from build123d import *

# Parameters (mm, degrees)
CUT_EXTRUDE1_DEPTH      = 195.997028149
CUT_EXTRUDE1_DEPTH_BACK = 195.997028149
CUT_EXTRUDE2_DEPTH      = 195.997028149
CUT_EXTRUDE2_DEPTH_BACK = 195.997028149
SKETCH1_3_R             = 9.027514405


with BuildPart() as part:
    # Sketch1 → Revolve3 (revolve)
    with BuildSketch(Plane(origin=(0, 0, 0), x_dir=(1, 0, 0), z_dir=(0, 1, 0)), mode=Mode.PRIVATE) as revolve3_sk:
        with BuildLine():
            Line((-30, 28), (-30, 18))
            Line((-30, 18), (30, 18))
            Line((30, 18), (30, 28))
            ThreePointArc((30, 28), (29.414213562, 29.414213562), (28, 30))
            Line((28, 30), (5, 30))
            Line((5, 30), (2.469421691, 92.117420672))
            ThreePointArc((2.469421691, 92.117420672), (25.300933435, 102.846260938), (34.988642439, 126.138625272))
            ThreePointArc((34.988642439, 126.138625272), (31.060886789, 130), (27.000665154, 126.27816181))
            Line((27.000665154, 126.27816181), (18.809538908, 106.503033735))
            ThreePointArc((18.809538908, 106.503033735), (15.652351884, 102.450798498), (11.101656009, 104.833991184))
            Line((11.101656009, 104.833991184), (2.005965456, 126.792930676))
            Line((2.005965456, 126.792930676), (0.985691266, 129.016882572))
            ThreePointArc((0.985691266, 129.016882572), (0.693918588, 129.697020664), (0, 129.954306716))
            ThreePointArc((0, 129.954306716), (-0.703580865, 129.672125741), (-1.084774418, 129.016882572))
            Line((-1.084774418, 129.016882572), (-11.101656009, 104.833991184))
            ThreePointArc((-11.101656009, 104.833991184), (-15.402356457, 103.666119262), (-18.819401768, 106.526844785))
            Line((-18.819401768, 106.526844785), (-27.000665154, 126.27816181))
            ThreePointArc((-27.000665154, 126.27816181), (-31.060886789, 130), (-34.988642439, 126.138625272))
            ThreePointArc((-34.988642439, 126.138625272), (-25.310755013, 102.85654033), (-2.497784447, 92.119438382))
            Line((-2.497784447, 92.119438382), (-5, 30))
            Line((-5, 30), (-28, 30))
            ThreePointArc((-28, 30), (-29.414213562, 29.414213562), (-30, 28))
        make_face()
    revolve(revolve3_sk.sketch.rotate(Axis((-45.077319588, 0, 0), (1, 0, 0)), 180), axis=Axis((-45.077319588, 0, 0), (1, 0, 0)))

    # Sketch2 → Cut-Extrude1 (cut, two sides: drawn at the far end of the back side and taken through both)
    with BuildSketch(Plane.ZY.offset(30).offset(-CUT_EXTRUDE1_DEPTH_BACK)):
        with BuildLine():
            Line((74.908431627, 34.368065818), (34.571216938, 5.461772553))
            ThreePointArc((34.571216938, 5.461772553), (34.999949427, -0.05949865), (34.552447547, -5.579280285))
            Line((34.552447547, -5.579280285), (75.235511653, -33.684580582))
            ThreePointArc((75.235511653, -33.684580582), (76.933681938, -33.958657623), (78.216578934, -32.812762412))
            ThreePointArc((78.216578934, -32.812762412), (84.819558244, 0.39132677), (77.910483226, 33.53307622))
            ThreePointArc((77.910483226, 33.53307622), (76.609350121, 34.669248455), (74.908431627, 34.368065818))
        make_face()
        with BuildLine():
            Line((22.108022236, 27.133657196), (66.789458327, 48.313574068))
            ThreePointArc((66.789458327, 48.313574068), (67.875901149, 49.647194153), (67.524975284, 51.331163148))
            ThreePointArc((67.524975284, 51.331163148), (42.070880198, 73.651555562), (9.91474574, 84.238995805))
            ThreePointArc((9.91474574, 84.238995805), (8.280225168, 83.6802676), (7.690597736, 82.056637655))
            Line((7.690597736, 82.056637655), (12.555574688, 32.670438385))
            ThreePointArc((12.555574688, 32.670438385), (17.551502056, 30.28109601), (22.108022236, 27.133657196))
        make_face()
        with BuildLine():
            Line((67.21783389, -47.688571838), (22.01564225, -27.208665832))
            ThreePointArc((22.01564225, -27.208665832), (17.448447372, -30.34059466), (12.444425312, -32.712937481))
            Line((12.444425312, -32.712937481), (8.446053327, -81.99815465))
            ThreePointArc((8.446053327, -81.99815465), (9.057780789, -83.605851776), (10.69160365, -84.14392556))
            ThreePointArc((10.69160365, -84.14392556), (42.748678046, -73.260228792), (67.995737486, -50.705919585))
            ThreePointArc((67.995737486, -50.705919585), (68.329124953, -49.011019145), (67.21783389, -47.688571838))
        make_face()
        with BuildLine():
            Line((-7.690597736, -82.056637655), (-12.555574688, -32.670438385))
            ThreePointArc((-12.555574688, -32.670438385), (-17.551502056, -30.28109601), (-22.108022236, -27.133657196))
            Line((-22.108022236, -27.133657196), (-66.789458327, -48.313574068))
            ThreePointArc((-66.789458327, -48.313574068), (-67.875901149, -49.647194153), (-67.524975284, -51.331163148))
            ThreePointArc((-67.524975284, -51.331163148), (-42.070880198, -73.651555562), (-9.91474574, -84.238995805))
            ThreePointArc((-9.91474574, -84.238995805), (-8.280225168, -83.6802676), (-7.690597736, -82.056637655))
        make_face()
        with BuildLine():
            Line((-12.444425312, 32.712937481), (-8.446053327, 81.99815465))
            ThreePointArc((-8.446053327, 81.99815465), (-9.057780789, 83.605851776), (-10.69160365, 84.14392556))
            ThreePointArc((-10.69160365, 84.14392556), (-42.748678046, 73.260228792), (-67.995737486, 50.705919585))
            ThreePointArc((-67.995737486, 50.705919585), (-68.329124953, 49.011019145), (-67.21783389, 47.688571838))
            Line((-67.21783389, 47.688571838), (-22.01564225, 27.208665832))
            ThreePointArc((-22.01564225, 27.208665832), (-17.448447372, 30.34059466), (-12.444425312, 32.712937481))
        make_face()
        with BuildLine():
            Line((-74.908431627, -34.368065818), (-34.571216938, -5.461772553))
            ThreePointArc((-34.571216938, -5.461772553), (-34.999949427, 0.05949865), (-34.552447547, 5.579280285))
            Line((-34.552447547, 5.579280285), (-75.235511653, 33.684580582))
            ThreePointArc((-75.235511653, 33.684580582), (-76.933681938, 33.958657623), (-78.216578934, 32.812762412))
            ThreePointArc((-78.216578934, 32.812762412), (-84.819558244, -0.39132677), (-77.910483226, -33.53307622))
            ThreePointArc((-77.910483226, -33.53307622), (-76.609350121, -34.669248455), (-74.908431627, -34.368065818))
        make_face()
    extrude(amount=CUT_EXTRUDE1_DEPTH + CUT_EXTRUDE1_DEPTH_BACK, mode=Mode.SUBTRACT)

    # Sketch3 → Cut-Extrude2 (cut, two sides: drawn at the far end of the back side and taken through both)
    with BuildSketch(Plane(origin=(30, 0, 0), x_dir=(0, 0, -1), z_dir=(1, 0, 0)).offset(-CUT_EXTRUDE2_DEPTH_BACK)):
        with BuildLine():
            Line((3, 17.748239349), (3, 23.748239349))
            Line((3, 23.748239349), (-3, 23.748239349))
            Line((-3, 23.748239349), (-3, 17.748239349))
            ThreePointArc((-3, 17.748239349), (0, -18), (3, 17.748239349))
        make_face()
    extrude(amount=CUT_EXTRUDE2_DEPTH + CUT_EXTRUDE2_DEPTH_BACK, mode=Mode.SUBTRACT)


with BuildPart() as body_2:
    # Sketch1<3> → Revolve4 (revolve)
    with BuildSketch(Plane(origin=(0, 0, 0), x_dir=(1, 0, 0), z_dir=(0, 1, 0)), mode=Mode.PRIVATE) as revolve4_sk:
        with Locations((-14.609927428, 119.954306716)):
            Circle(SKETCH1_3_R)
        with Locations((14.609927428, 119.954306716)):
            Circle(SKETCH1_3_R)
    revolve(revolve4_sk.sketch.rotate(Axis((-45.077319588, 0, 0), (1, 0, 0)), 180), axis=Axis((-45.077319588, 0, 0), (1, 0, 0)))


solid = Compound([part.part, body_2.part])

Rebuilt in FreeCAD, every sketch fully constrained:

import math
import FreeCAD as App
import Part
import Sketcher
from FreeCAD import Vector
Q = App.Units.Quantity

doc = App.newDocument("Part")
params = doc.addObject("Spreadsheet::Sheet", "Params")
for row, (alias, value) in enumerate([
    ("sketch1_radius", "2 mm"),
    ("sketch1_radius2", "35 mm"),
    ("sketch1_radius3", "4 mm"),
    ("sketch1_width", "60 mm"),
    ("sketch1_width2", "23 mm"),
    ("revolution_angle", "360 deg"),
    ("sketch2_radius", "35 mm"),
    ("sketch2_radius2", "2 mm"),
    ("sketch3_radius", "18 mm"),
    ("sketch3_width", "6 mm"),
    ("revolution2_angle", "360 deg"),
], start=1):
    params.set(f"A{row}", alias)
    params.set(f"B{row}", "=" + value)
    params.setAlias(f"B{row}", alias)

body = doc.addObject("PartDesign::Body", "Body")

# Sketch on XZ plane
sketch1 = body.newObject("Sketcher::SketchObject", "Sketch")
sketch1.AttachmentSupport = (doc.getObject("XZ_Plane"), [""])
sketch1.MapMode = "FlatFace"
sketch1.addGeometry([
    Part.LineSegment(Vector(-30, -28, 0), Vector(-30, -18, 0)),  # 0
    Part.LineSegment(Vector(-30, -18, 0), Vector(30, -18, 0)),  # 1
    Part.LineSegment(Vector(30, -18, 0), Vector(30, -28, 0)),  # 2
    Part.ArcOfCircle(Part.Circle(Vector(28, -28, 0), Vector(0, 0, 1), 2), math.radians(-90), math.radians(0)),  # 3
    Part.LineSegment(Vector(28, -30, 0), Vector(5, -30, 0)),  # 4
    Part.LineSegment(Vector(5, -30, 0), Vector(2.5, -92.1, 0)),  # 5
    Part.ArcOfCircle(Part.Circle(Vector(0, -127, 0), Vector(0, 0, 1), 35), math.radians(1), math.radians(86)),  # 6
    Part.ArcOfCircle(Part.Circle(Vector(31, -126, 0), Vector(0, 0, 1), 4), math.radians(-176), math.radians(-2)),  # 7
    Part.LineSegment(Vector(27, -126.3, 0), Vector(18.8, -106.5, 0)),  # 8
    Part.ArcOfCircle(Part.Circle(Vector(14.8, -106.4, 0), Vector(0, 0, 1), 4), math.radians(-2), math.radians(157)),  # 9
    Part.LineSegment(Vector(11.1, -104.8, 0), Vector(2, -126.8, 0)),  # 10
    Part.LineSegment(Vector(2, -126.8, 0), Vector(1, -129, 0)),  # 11
    Part.ArcOfCircle(Part.Circle(Vector(0, -129, 0), Vector(0, 0, 1), 0.9), math.radians(-93), math.radians(0)),  # 12
    Part.ArcOfCircle(Part.Circle(Vector(0.1, -128.8, 0), Vector(0, 0, 1), 1.2), math.radians(-169), math.radians(-93)),  # 13
    Part.LineSegment(Vector(-1.1, -129, 0), Vector(-11.1, -104.8, 0)),  # 14
    Part.ArcOfCircle(Part.Circle(Vector(-14.4, -108.4, 0), Vector(0, 0, 1), 4.8), math.radians(47), math.radians(158)),  # 15
    Part.LineSegment(Vector(-18.8, -106.5, 0), Vector(-27, -126.3, 0)),  # 16
    Part.ArcOfCircle(Part.Circle(Vector(-31, -126, 0), Vector(0, 0, 1), 4), math.radians(-178), math.radians(-4)),  # 17
    Part.ArcOfCircle(Part.Circle(Vector(0, -127, 0), Vector(0, 0, 1), 35), math.radians(94), math.radians(179)),  # 18
    Part.LineSegment(Vector(-2.5, -92.1, 0), Vector(-5, -30, 0)),  # 19
    Part.LineSegment(Vector(-5, -30, 0), Vector(-28, -30, 0)),  # 20
    Part.ArcOfCircle(Part.Circle(Vector(-28, -28, 0), Vector(0, 0, 1), 2), math.radians(-180), math.radians(-90)),  # 21
], False)
sketch1.addConstraint([
    Sketcher.Constraint("Coincident", 0, 2, 1, 1),
    Sketcher.Constraint("Coincident", 1, 2, 2, 1),
    Sketcher.Constraint("Tangent", 2, 2, 3, 2),
    Sketcher.Constraint("Tangent", 3, 1, 4, 1),
    Sketcher.Constraint("Coincident", 4, 2, 5, 1),
    Sketcher.Constraint("Coincident", 5, 2, 6, 2),
    Sketcher.Constraint("Coincident", 6, 1, 7, 2),
    Sketcher.Constraint("Coincident", 7, 1, 8, 1),
    Sketcher.Constraint("Coincident", 8, 2, 9, 1),
    Sketcher.Constraint("Tangent", 9, 2, 10, 1),
    Sketcher.Constraint("Coincident", 10, 2, 11, 1),
    Sketcher.Constraint("Coincident", 11, 2, 12, 2),
    Sketcher.Constraint("Tangent", 12, 1, 13, 2),
    Sketcher.Constraint("Coincident", 13, 1, 14, 1),
    Sketcher.Constraint("Coincident", 14, 2, 15, 1),
    Sketcher.Constraint("Tangent", 15, 2, 16, 1),
    Sketcher.Constraint("Coincident", 16, 2, 17, 2),
    Sketcher.Constraint("Coincident", 17, 1, 18, 2),
    Sketcher.Constraint("Coincident", 18, 1, 19, 1),
    Sketcher.Constraint("Coincident", 19, 2, 20, 1),
    Sketcher.Constraint("Tangent", 20, 2, 21, 2),
    Sketcher.Constraint("Tangent", 21, 1, 0, 1),
    Sketcher.Constraint("Vertical", 0),
    Sketcher.Constraint("Horizontal", 1),
    Sketcher.Constraint("Vertical", 2),
    Sketcher.Constraint("Horizontal", 4),
    Sketcher.Constraint("Horizontal", 20),
    Sketcher.Constraint("Coincident", 18, 3, 6, 3),
    Sketcher.Constraint("Equal", 7, 17),
    Sketcher.Constraint("Equal", 6, 18),
    Sketcher.Constraint("Equal", 3, 21),
    Sketcher.Constraint("Symmetric", 7, 3, 17, 3, -2),
    Sketcher.Constraint("Symmetric", 3, 3, 21, 3, -2),
    Sketcher.Constraint("Symmetric", 9, 2, 14, 2, -2),
    Sketcher.Constraint("PointOnObject", 6, 3, -2),
    Sketcher.Constraint("PointOnObject", 12, 1, -2),
    Sketcher.Constraint("Parallel", 8, 14),
    Sketcher.Constraint("Parallel", 10, 16),
    Sketcher.Constraint("Horizontal", 12, 3, 11, 2),
    Sketcher.Constraint("Horizontal", 11, 2, 13, 1),
    Sketcher.Constraint("Horizontal", 7, 1, 16, 2),
    Sketcher.Constraint("Equal", 4, 20),
    Sketcher.Constraint("Radius", 3, 2.0),
    Sketcher.Constraint("Radius", 6, 35.0),
    Sketcher.Constraint("Radius", 7, 4.0),
    Sketcher.Constraint("DistanceX", 1, 1, 1, 2, 60.0),
    Sketcher.Constraint("DistanceX", 4, 2, 4, 1, 23.0),
    Sketcher.Constraint("DistanceY", 0, 1, 0, 2, 10.0),
    Sketcher.Constraint("DistanceY", 3, 3, -1, 1, 28.0),
    Sketcher.Constraint("Angle", 8, Q("112.5 deg")),
    Sketcher.Constraint("Angle", 10, Q("-112.5 deg")),
    Sketcher.Constraint("Radius", 13, 1.165479),
    Sketcher.Constraint("Radius", 9, 4.007616),
    Sketcher.Constraint("Radius", 12, 0.938606),
    Sketcher.Constraint("Radius", 15, 4.815266),
    Sketcher.Constraint("DistanceX", 15, 2, -1, 1, 18.819402),
    Sketcher.Constraint("DistanceX", 15, 3, 7, 3, 45.3617),
    Sketcher.Constraint("DistanceX", 13, 3, 10, 2, 1.947499),
    Sketcher.Constraint("Distance", 11, 2.446819),
    Sketcher.Constraint("Distance", 16, 21.378671),
    Sketcher.Constraint("DistanceY", 7, 3, -1, 1, 126.00061),
    Sketcher.Constraint("DistanceX", -1, 1, 9, 3, 14.804211),
    Sketcher.Constraint("DistanceX", -1, 1, 5, 2, 2.469422),
    Sketcher.Constraint("DistanceY", 5, 2, -1, 1, 92.117421),
    Sketcher.Constraint("DistanceY", 18, 1, -1, 1, 92.119438),
])
sketch1.setExpression("Constraints[42]", "Params.sketch1_radius")
sketch1.setExpression("Constraints[43]", "Params.sketch1_radius2")
sketch1.setExpression("Constraints[44]", "Params.sketch1_radius3")
sketch1.setExpression("Constraints[45]", "Params.sketch1_width")
sketch1.setExpression("Constraints[46]", "Params.sketch1_width2")
revolution = body.newObject("PartDesign::Revolution", "Revolution")
revolution.Profile = sketch1
revolution.ReferenceAxis = (sketch1, ["H_Axis"])
revolution.setExpression("Angle", "Params.revolution_angle")

# Sketch on YZ plane
sketch2 = body.newObject("Sketcher::SketchObject", "Sketch001")
sketch2.AttachmentSupport = (doc.getObject("YZ_Plane"), [""])
sketch2.MapMode = "FlatFace"
sketch2.AttachmentOffset = App.Placement(Vector(0, 0, -30), App.Rotation())
sketch2.addGeometry([
    Part.LineSegment(Vector(34.4, 74.9, 0), Vector(5.5, 34.6, 0)),  # 0
    Part.ArcOfCircle(Part.Circle(Vector(0, 0, 0), Vector(0, 0, 1), 35), math.radians(81.02), math.radians(99.17)),  # 1
    Part.LineSegment(Vector(-5.6, 34.6, 0), Vector(-33.7, 75.2, 0)),  # 2
    Part.ArcOfCircle(Part.Circle(Vector(-32, 76.4, 0), Vector(0, 0, 1), 2), math.radians(113), math.radians(215)),  # 3
    Part.ArcOfCircle(Part.Circle(Vector(0, 0, 0), Vector(0, 0, 1), 84.8), math.radians(67), math.radians(113)),  # 4
    Part.ArcOfCircle(Part.Circle(Vector(32.7, 76.1, 0), Vector(0, 0, 1), 2), math.radians(-36), math.radians(67)),  # 5
    Part.LineSegment(Vector(27.1, 22.1, 0), Vector(48.3, 66.8, 0)),  # 6
    Part.ArcOfCircle(Part.Circle(Vector(50.1, 65.9, 0), Vector(0, 0, 1), 2), math.radians(53), math.radians(155)),  # 7
    Part.ArcOfCircle(Part.Circle(Vector(0, 0, 0), Vector(0, 0, 1), 84.8), math.radians(7), math.radians(53)),  # 8
    Part.ArcOfCircle(Part.Circle(Vector(82.3, 9.7, 0), Vector(0, 0, 1), 2), math.radians(-96), math.radians(7)),  # 9
    Part.LineSegment(Vector(82.1, 7.7, 0), Vector(32.7, 12.6, 0)),  # 10
    Part.ArcOfCircle(Part.Circle(Vector(0, 0, 0), Vector(0, 0, 1), 35), math.radians(21.02), math.radians(39.17)),  # 11
    Part.LineSegment(Vector(-47.7, 67.2, 0), Vector(-27.2, 22, 0)),  # 12
    Part.ArcOfCircle(Part.Circle(Vector(0, 0, 0), Vector(0, 0, 1), 35), math.radians(141.02), math.radians(159.17)),  # 13
    Part.LineSegment(Vector(-32.7, 12.4, 0), Vector(-82, 8.4, 0)),  # 14
    Part.ArcOfCircle(Part.Circle(Vector(-82.2, 10.4, 0), Vector(0, 0, 1), 2), math.radians(173), math.radians(275)),  # 15
    Part.ArcOfCircle(Part.Circle(Vector(0, 0, 0), Vector(0, 0, 1), 84.8), math.radians(127), math.radians(173)),  # 16
    Part.ArcOfCircle(Part.Circle(Vector(-49.5, 66.4, 0), Vector(0, 0, 1), 2), math.radians(24), math.radians(127)),  # 17
    Part.LineSegment(Vector(-82.1, -7.7, 0), Vector(-32.7, -12.6, 0)),  # 18
    Part.ArcOfCircle(Part.Circle(Vector(0, 0, 0), Vector(0, 0, 1), 35), math.radians(-158.98), math.radians(-140.83)),  # 19
    Part.LineSegment(Vector(-27.1, -22.1, 0), Vector(-48.3, -66.8, 0)),  # 20
    Part.ArcOfCircle(Part.Circle(Vector(-50.1, -65.9, 0), Vector(0, 0, 1), 2), math.radians(-127), math.radians(-25)),  # 21
    Part.ArcOfCircle(Part.Circle(Vector(0, 0, 0), Vector(0, 0, 1), 84.8), math.radians(-173), math.radians(-127)),  # 22
    Part.ArcOfCircle(Part.Circle(Vector(-82.3, -9.7, 0), Vector(0, 0, 1), 2), math.radians(84), math.radians(187)),  # 23
    Part.LineSegment(Vector(32.7, -12.4, 0), Vector(82, -8.4, 0)),  # 24
    Part.ArcOfCircle(Part.Circle(Vector(82.2, -10.4, 0), Vector(0, 0, 1), 2), math.radians(-7), math.radians(95)),  # 25
    Part.ArcOfCircle(Part.Circle(Vector(0, 0, 0), Vector(0, 0, 1), 84.8), math.radians(-53), math.radians(-7)),  # 26
    Part.ArcOfCircle(Part.Circle(Vector(49.5, -66.4, 0), Vector(0, 0, 1), 2), math.radians(-156), math.radians(-53)),  # 27
    Part.LineSegment(Vector(47.7, -67.2, 0), Vector(27.2, -22, 0)),  # 28
    Part.ArcOfCircle(Part.Circle(Vector(0, 0, 0), Vector(0, 0, 1), 35), math.radians(-38.98), math.radians(-20.83)),  # 29
    Part.LineSegment(Vector(-34.4, -74.9, 0), Vector(-5.5, -34.6, 0)),  # 30
    Part.ArcOfCircle(Part.Circle(Vector(0, 0, 0), Vector(0, 0, 1), 35), math.radians(-98.98), math.radians(-80.83)),  # 31
    Part.LineSegment(Vector(5.6, -34.6, 0), Vector(33.7, -75.2, 0)),  # 32
    Part.ArcOfCircle(Part.Circle(Vector(32, -76.4, 0), Vector(0, 0, 1), 2), math.radians(-67), math.radians(35)),  # 33
    Part.ArcOfCircle(Part.Circle(Vector(0, 0, 0), Vector(0, 0, 1), 84.8), math.radians(-113), math.radians(-67)),  # 34
    Part.ArcOfCircle(Part.Circle(Vector(-32.7, -76.1, 0), Vector(0, 0, 1), 2), math.radians(144), math.radians(247)),  # 35
], False)
sketch2.addConstraint([
    Sketcher.Constraint("Coincident", 0, 2, 1, 1),
    Sketcher.Constraint("Coincident", 1, 2, 2, 1),
    Sketcher.Constraint("Tangent", 2, 2, 3, 2),
    Sketcher.Constraint("Tangent", 3, 1, 4, 2),
    Sketcher.Constraint("Tangent", 4, 1, 5, 2),
    Sketcher.Constraint("Tangent", 5, 1, 0, 1),
    Sketcher.Constraint("Tangent", 6, 2, 7, 2),
    Sketcher.Constraint("Tangent", 7, 1, 8, 2),
    Sketcher.Constraint("Tangent", 8, 1, 9, 2),
    Sketcher.Constraint("Tangent", 9, 1, 10, 1),
    Sketcher.Constraint("Coincident", 10, 2, 11, 1),
    Sketcher.Constraint("Coincident", 11, 2, 6, 1),
    Sketcher.Constraint("Coincident", 12, 2, 13, 1),
    Sketcher.Constraint("Coincident", 13, 2, 14, 1),
    Sketcher.Constraint("Tangent", 14, 2, 15, 2),
    Sketcher.Constraint("Tangent", 15, 1, 16, 2),
    Sketcher.Constraint("Tangent", 16, 1, 17, 2),
    Sketcher.Constraint("Tangent", 17, 1, 12, 1),
    Sketcher.Constraint("Coincident", 18, 2, 19, 1),
    Sketcher.Constraint("Coincident", 19, 2, 20, 1),
    Sketcher.Constraint("Tangent", 20, 2, 21, 2),
    Sketcher.Constraint("Tangent", 21, 1, 22, 2),
    Sketcher.Constraint("Tangent", 22, 1, 23, 2),
    Sketcher.Constraint("Tangent", 23, 1, 18, 1),
    Sketcher.Constraint("Tangent", 24, 2, 25, 2),
    Sketcher.Constraint("Tangent", 25, 1, 26, 2),
    Sketcher.Constraint("Tangent", 26, 1, 27, 2),
    Sketcher.Constraint("Tangent", 27, 1, 28, 1),
    Sketcher.Constraint("Coincident", 28, 2, 29, 1),
    Sketcher.Constraint("Coincident", 29, 2, 24, 1),
    Sketcher.Constraint("Coincident", 30, 2, 31, 1),
    Sketcher.Constraint("Coincident", 31, 2, 32, 1),
    Sketcher.Constraint("Tangent", 32, 2, 33, 2),
    Sketcher.Constraint("Tangent", 33, 1, 34, 2),
    Sketcher.Constraint("Tangent", 34, 1, 35, 2),
    Sketcher.Constraint("Tangent", 35, 1, 30, 1),
    Sketcher.Constraint("Coincident", 1, 3, -1, 1),
    Sketcher.Constraint("Coincident", 4, 3, -1, 1),
    Sketcher.Constraint("Coincident", 8, 3, -1, 1),
    Sketcher.Constraint("Coincident", 11, 3, -1, 1),
    Sketcher.Constraint("Coincident", 13, 3, -1, 1),
    Sketcher.Constraint("Coincident", 16, 3, -1, 1),
    Sketcher.Constraint("Coincident", 19, 3, -1, 1),
    Sketcher.Constraint("Coincident", 22, 3, -1, 1),
    Sketcher.Constraint("Coincident", 26, 3, -1, 1),
    Sketcher.Constraint("Coincident", 29, 3, -1, 1),
    Sketcher.Constraint("Coincident", 31, 3, -1, 1),
    Sketcher.Constraint("Coincident", 34, 3, -1, 1),
    Sketcher.Constraint("Equal", 3, 5),
    Sketcher.Constraint("Equal", 5, 7),
    Sketcher.Constraint("Equal", 4, 8),
    Sketcher.Constraint("Equal", 7, 9),
    Sketcher.Constraint("Equal", 1, 11),
    Sketcher.Constraint("Equal", 11, 13),
    Sketcher.Constraint("Equal", 9, 15),
    Sketcher.Constraint("Equal", 8, 16),
    Sketcher.Constraint("Equal", 15, 17),
    Sketcher.Constraint("Equal", 13, 19),
    Sketcher.Constraint("Equal", 17, 21),
    Sketcher.Constraint("Equal", 16, 22),
    Sketcher.Constraint("Equal", 21, 23),
    Sketcher.Constraint("Equal", 23, 25),
    Sketcher.Constraint("Equal", 22, 26),
    Sketcher.Constraint("Equal", 25, 27),
    Sketcher.Constraint("Equal", 19, 29),
    Sketcher.Constraint("Equal", 29, 31),
    Sketcher.Constraint("Equal", 27, 33),
    Sketcher.Constraint("Equal", 26, 34),
    Sketcher.Constraint("Equal", 33, 35),
    Sketcher.Constraint("Symmetric", 6, 2, 20, 2, -1, 1),
    Sketcher.Constraint("Symmetric", 9, 1, 23, 1, -1, 1),
    Sketcher.Constraint("Symmetric", 14, 2, 24, 2, -1, 1),
    Sketcher.Constraint("Symmetric", 17, 1, 27, 1, -1, 1),
    Sketcher.Constraint("Symmetric", 2, 2, 32, 2, -1, 1),
    Sketcher.Constraint("Symmetric", 5, 1, 35, 1, -1, 1),
    Sketcher.Constraint("Equal", 2, 6),
    Sketcher.Constraint("Equal", 0, 10),
    Sketcher.Constraint("Equal", 10, 12),
    Sketcher.Constraint("Equal", 6, 14),
    Sketcher.Constraint("Radius", 1, 35.0),
    Sketcher.Constraint("Radius", 3, 2.0),
    Sketcher.Constraint("DistanceY", 18, 2, 13, 2, 25.0),
    Sketcher.Constraint("Radius", 4, 84.820461),
    Sketcher.Constraint("DistanceX", 2, 2, 1, 2, 28.1053),
    Sketcher.Constraint("DistanceX", 3, 1, 3, 3, 0.773699),
    Sketcher.Constraint("DistanceX", 0, 2, 6, 2, 42.851802),
    Sketcher.Constraint("DistanceY", 25, 3, 9, 1, 18.130102),
    Sketcher.Constraint("DistanceY", 15, 3, 15, 1, 0.2521),
    Sketcher.Constraint("DistanceY", 21, 1, 18, 2, 54.969401),
    Sketcher.Constraint("DistanceY", -1, 1, 17, 3, 66.392451),
])
sketch2.setExpression("Constraints[79]", "Params.sketch2_radius")
sketch2.setExpression("Constraints[80]", "Params.sketch2_radius2")
pocket1 = body.newObject("PartDesign::Pocket", "Pocket")
pocket1.Profile = sketch2
pocket1.Type = "ThroughAll"
pocket1.Midplane = True

# Sketch on YZ plane
sketch3 = body.newObject("Sketcher::SketchObject", "Sketch002")
sketch3.AttachmentSupport = (doc.getObject("YZ_Plane"), [""])
sketch3.MapMode = "FlatFace"
sketch3.AttachmentOffset = App.Placement(Vector(0, 0, 30), App.Rotation())
sketch3.addGeometry([
    Part.LineSegment(Vector(18, -3, 0), Vector(24, -3, 0)),
    Part.LineSegment(Vector(24, -3, 0), Vector(24, 3, 0)),
    Part.LineSegment(Vector(24, 3, 0), Vector(18, 3, 0)),
    Part.ArcOfCircle(Part.Circle(Vector(0, 0, 0), Vector(0, 0, 1), 18), math.radians(10), math.radians(350)),
], False)
sketch3.addConstraint([
    Sketcher.Constraint("Coincident", 0, 2, 1, 1),
    Sketcher.Constraint("Coincident", 1, 2, 2, 1),
    Sketcher.Constraint("Coincident", 2, 2, 3, 1),
    Sketcher.Constraint("Coincident", 3, 2, 0, 1),
    Sketcher.Constraint("Horizontal", 0),
    Sketcher.Constraint("Vertical", 1),
    Sketcher.Constraint("Horizontal", 2),
    Sketcher.Constraint("Coincident", 3, 3, -1, 1),
    Sketcher.Constraint("Vertical", 2, 2, 3, 2),
    Sketcher.Constraint("Equal", 2, 1),
    Sketcher.Constraint("Radius", 3, 18.0),
    Sketcher.Constraint("DistanceX", 0, 1, 0, 2, 6.0),
])
sketch3.setExpression("Constraints[10]", "Params.sketch3_radius")
sketch3.setExpression("Constraints[11]", "Params.sketch3_width")
pocket2 = body.newObject("PartDesign::Pocket", "Pocket001")
pocket2.Profile = sketch3
pocket2.Type = "ThroughAll"
pocket2.Midplane = True
body2 = doc.addObject("PartDesign::Body", "Body001")
body2.AllowCompound = True

# Sketch on XZ plane
sketch4 = body2.newObject("Sketcher::SketchObject", "Sketch003")
sketch4.AttachmentSupport = (doc.getObject("XZ_Plane001"), [""])
sketch4.MapMode = "FlatFace"
sketch4.addGeometry([
    Part.Circle(Vector(-15, -120, 0), Vector(0, 0, 1), 9),
    Part.Circle(Vector(15, -120, 0), Vector(0, 0, 1), 9),
], False)
sketch4.addConstraint([
    Sketcher.Constraint("Equal", 0, 1),
    Sketcher.Constraint("Symmetric", 0, 3, 1, 3, -2),
    Sketcher.Constraint("Diameter", 0, 18.055029),
    Sketcher.Constraint("DistanceX", 0, 3, -1, 1, 14.609927),
    Sketcher.Constraint("DistanceY", 0, 3, -1, 1, 119.954307),
])
revolution2 = body2.newObject("PartDesign::Revolution", "Revolution001")
revolution2.Profile = sketch4
revolution2.ReferenceAxis = (sketch4, ["H_Axis"])
revolution2.setExpression("Angle", "Params.revolution2_angle")

doc.recompute()
